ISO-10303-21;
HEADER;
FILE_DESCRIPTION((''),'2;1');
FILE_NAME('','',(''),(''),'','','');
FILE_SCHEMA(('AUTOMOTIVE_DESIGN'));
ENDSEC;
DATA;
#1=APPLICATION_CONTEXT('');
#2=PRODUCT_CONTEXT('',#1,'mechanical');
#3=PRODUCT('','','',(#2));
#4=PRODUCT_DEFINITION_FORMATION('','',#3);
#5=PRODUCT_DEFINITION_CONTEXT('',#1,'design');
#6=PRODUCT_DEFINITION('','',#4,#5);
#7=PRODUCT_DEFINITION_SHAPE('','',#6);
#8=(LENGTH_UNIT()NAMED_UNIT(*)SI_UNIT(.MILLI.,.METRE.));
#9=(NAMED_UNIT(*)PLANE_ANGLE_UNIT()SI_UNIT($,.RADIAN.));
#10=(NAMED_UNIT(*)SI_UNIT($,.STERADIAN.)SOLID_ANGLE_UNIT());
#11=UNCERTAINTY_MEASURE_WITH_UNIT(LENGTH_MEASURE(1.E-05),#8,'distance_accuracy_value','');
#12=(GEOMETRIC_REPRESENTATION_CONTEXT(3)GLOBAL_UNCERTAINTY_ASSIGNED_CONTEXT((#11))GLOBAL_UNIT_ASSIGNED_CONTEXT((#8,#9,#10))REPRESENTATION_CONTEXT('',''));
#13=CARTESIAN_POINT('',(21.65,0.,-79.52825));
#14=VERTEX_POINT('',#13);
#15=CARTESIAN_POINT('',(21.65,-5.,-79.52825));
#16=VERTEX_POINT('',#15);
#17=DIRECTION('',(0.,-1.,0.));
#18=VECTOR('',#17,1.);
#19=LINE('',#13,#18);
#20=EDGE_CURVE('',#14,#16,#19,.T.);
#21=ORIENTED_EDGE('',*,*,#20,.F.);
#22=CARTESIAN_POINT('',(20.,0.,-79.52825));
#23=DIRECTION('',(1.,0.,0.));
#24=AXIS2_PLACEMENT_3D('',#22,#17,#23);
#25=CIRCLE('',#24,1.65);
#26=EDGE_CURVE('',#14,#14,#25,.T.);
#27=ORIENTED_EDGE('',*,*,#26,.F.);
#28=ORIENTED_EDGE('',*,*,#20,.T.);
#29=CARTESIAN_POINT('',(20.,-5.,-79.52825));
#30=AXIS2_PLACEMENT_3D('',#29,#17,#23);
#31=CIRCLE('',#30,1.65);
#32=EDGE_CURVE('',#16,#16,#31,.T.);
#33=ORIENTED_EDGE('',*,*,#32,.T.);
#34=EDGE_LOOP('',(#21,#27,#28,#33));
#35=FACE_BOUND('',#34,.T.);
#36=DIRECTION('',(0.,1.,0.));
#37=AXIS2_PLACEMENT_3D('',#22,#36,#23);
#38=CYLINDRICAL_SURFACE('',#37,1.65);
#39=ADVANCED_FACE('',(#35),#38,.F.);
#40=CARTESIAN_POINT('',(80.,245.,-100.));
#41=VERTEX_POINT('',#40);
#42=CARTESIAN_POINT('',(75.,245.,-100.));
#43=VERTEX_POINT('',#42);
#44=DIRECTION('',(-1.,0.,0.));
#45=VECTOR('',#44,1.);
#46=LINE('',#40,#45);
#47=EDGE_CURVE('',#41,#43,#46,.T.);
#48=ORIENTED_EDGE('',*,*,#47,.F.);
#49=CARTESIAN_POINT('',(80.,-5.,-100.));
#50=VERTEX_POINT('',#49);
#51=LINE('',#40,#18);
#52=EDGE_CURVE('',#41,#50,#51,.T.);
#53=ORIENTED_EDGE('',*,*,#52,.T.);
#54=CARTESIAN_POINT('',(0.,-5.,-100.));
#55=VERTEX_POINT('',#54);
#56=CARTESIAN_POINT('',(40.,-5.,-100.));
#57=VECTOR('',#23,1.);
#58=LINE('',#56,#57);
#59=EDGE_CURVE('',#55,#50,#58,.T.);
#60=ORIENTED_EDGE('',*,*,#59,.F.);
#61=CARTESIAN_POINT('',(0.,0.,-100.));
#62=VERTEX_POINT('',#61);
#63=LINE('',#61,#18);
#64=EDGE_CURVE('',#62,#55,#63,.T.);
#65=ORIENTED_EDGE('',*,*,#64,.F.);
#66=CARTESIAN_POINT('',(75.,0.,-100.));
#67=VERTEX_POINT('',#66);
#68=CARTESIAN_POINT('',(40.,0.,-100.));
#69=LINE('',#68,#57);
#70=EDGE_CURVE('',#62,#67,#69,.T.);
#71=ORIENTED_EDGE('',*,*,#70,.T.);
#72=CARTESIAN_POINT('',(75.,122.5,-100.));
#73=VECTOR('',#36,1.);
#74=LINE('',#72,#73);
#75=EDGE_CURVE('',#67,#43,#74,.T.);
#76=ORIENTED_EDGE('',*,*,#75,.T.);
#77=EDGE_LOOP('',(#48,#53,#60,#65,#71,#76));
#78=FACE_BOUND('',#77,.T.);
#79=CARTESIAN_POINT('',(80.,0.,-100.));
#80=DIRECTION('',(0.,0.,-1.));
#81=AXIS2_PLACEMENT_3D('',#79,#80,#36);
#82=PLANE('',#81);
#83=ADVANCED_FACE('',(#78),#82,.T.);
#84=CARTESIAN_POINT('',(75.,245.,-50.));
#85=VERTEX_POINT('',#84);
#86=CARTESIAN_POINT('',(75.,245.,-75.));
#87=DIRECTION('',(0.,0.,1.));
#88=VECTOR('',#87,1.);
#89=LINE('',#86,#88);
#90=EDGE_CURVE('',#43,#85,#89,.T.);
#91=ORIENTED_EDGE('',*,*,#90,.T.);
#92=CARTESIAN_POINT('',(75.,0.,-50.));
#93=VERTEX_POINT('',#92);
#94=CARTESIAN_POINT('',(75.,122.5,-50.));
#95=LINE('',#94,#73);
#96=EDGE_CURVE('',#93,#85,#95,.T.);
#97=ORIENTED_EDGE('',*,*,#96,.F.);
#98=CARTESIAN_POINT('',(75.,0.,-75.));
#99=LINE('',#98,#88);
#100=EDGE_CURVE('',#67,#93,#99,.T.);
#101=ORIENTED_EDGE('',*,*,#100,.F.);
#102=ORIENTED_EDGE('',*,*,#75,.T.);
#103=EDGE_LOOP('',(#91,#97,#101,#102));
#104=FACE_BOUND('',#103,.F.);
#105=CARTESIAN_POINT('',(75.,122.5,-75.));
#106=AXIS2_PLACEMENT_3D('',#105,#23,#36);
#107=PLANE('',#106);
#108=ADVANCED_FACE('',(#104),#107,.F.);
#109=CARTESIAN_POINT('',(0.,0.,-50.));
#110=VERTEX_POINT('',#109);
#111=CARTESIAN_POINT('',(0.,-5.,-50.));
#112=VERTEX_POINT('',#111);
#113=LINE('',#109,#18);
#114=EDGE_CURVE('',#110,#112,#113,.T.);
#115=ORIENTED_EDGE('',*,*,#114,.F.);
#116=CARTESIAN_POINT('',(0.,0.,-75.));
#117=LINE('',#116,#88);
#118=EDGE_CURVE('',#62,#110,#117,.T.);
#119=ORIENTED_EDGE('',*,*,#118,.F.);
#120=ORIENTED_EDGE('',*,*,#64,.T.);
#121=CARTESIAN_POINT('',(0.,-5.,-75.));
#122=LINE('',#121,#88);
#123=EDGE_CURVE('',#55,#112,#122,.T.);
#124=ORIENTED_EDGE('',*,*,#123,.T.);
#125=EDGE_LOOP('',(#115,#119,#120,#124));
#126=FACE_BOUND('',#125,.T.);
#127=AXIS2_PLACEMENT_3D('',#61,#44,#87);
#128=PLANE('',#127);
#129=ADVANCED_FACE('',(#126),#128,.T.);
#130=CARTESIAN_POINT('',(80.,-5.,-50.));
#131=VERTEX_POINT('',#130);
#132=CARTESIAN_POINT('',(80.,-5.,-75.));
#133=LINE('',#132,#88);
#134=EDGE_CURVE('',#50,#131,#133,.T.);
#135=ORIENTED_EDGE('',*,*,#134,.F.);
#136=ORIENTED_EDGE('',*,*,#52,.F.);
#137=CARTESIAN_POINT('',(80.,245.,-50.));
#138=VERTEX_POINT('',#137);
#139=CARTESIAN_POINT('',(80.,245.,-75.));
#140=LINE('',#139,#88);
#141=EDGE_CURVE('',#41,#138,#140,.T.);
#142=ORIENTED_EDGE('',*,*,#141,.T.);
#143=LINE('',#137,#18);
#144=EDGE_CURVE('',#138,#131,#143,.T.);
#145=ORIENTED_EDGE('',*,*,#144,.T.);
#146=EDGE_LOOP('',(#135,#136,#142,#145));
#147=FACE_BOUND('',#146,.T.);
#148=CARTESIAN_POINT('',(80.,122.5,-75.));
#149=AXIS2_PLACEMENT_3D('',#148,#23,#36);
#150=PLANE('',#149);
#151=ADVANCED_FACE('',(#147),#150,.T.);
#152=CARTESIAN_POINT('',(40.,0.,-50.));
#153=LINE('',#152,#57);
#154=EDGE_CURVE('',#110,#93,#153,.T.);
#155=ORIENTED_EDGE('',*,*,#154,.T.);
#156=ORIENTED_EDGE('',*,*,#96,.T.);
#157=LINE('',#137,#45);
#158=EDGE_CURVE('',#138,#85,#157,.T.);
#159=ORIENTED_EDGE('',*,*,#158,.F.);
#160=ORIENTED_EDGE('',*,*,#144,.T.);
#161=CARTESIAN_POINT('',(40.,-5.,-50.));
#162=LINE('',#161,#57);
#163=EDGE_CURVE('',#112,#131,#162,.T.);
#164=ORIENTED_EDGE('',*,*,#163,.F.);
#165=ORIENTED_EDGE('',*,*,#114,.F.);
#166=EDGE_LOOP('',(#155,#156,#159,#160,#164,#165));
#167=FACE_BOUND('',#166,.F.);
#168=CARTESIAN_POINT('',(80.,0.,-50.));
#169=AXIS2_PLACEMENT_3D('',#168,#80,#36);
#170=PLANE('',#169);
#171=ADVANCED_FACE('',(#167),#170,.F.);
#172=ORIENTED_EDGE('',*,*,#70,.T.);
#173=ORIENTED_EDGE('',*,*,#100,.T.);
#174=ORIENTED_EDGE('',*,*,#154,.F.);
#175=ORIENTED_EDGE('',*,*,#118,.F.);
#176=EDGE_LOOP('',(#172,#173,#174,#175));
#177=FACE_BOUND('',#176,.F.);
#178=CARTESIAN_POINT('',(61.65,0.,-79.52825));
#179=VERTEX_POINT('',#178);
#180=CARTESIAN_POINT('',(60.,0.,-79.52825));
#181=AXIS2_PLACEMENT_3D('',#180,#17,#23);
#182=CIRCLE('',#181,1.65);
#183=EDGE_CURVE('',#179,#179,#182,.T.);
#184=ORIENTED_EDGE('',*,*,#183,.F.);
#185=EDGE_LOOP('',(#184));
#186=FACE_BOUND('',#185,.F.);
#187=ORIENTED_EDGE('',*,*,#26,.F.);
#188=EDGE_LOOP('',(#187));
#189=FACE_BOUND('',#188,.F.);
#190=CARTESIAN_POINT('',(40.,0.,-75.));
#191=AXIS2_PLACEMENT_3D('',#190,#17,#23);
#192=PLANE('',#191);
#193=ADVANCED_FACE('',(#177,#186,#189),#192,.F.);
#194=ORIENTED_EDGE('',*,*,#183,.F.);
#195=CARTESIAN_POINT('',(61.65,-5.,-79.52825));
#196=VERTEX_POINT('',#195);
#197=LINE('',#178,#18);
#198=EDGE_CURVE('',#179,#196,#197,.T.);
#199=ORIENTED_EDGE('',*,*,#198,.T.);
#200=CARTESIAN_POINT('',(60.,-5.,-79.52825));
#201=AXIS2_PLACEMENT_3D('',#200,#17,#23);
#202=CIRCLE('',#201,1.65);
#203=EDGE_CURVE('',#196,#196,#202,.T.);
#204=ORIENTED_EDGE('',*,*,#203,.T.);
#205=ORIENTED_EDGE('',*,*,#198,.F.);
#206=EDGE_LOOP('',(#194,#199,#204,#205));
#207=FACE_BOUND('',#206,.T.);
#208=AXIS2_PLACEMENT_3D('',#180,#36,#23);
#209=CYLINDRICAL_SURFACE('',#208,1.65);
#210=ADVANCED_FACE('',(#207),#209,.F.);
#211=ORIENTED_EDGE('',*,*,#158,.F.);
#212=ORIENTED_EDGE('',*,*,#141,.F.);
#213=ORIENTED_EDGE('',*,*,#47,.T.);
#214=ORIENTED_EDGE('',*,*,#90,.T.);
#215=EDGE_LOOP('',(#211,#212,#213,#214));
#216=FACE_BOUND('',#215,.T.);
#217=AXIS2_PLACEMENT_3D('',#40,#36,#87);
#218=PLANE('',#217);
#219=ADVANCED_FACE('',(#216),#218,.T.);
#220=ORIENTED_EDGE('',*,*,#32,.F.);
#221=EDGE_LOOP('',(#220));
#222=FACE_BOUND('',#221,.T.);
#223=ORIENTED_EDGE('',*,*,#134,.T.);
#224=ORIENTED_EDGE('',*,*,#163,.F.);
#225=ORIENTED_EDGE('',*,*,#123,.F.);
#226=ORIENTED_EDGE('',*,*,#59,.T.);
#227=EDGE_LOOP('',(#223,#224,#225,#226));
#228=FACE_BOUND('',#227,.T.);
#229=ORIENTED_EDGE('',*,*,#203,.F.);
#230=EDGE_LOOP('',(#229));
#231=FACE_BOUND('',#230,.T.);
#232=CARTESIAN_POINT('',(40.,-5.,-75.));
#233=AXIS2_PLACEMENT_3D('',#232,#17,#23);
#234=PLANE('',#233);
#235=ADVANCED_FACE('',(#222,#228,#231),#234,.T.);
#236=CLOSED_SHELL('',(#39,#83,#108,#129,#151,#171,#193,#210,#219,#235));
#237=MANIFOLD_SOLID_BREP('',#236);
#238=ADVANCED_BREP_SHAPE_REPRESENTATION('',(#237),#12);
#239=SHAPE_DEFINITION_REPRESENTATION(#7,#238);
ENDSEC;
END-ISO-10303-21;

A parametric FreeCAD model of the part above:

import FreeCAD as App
import Part
import Sketcher
from FreeCAD import Vector

doc = App.newDocument("Part")
body = doc.addObject("PartDesign::Body", "Body")

# Sketch on XZ plane
sketch1 = doc.addObject("Sketcher::SketchObject", "Sketch")
body.addObject(sketch1)
sketch1.AttachmentSupport = (doc.XZ_Plane, [""])
sketch1.MapMode = "FlatFace"
sketch1.addGeometry(Part.LineSegment(Vector(0, -50, 0), Vector(0, -100, 0)), False)
sketch1.addGeometry(Part.LineSegment(Vector(0, -100, 0), Vector(80, -100, 0)), False)
sketch1.addGeometry(Part.LineSegment(Vector(80, -100, 0), Vector(80, -50, 0)), False)
sketch1.addGeometry(Part.LineSegment(Vector(80, -50, 0), Vector(0, -50, 0)), False)
sketch1.addGeometry(Part.Circle(Vector(20, -79.5, 0), Vector(0, 0, 1), 1.6), False)
sketch1.addGeometry(Part.Circle(Vector(60, -79.5, 0), Vector(0, 0, 1), 1.6), False)
sketch1.addConstraint(Sketcher.Constraint("Coincident", 0, 2, 1, 1))
sketch1.addConstraint(Sketcher.Constraint("Coincident", 1, 2, 2, 1))
sketch1.addConstraint(Sketcher.Constraint("Coincident", 2, 2, 3, 1))
sketch1.addConstraint(Sketcher.Constraint("Coincident", 3, 2, 0, 1))
sketch1.addConstraint(Sketcher.Constraint("Vertical", 0))
sketch1.addConstraint(Sketcher.Constraint("Horizontal", 1))
sketch1.addConstraint(Sketcher.Constraint("Vertical", 2))
sketch1.addConstraint(Sketcher.Constraint("Horizontal", 3))
sketch1.addConstraint(Sketcher.Constraint("Equal", 4, 5))
sketch1.addConstraint(Sketcher.Constraint("PointOnObject", 0, 2, -2))
sketch1.addConstraint(Sketcher.Constraint("Horizontal", 4, 3, 5, 3))
sketch1.addConstraint(Sketcher.Constraint("Diameter", 4, 3.3))
sketch1.addConstraint(Sketcher.Constraint("DistanceX", 1, 1, 1, 2, 80.0))
sketch1.addConstraint(Sketcher.Constraint("DistanceY", 0, 2, 0, 1, 50.0))
sketch1.addConstraint(Sketcher.Constraint("DistanceX", -1, 1, 4, 3, 20.0))
sketch1.addConstraint(Sketcher.Constraint("DistanceX", -1, 1, 5, 3, 60.0))
sketch1.addConstraint(Sketcher.Constraint("DistanceY", 0, 2, -1, 1, 100.0))
sketch1.addConstraint(Sketcher.Constraint("DistanceY", 4, 3, -1, 1, 79.52825))
pad1 = doc.addObject("PartDesign::Pad", "Pad")
body.addObject(pad1)
pad1.Profile = sketch1
pad1.Length = 5

# Sketch on YZ plane
sketch2 = doc.addObject("Sketcher::SketchObject", "Sketch001")
body.addObject(sketch2)
sketch2.AttachmentSupport = (doc.YZ_Plane, [""])
sketch2.MapMode = "FlatFace"
sketch2.AttachmentOffset = App.Placement(Vector(0, 0, 80), App.Rotation())
sketch2.addGeometry(Part.LineSegment(Vector(0, -50, 0), Vector(0, -100, 0)), False)
sketch2.addGeometry(Part.LineSegment(Vector(0, -100, 0), Vector(245, -100, 0)), False)
sketch2.addGeometry(Part.LineSegment(Vector(245, -100, 0), Vector(245, -50, 0)), False)
sketch2.addGeometry(Part.LineSegment(Vector(245, -50, 0), Vector(0, -50, 0)), False)
sketch2.addConstraint(Sketcher.Constraint("Coincident", 0, 2, 1, 1))
sketch2.addConstraint(Sketcher.Constraint("Coincident", 1, 2, 2, 1))
sketch2.addConstraint(Sketcher.Constraint("Coincident", 2, 2, 3, 1))
sketch2.addConstraint(Sketcher.Constraint("Coincident", 3, 2, 0, 1))
sketch2.addConstraint(Sketcher.Constraint("Vertical", 0))
sketch2.addConstraint(Sketcher.Constraint("Horizontal", 1))
sketch2.addConstraint(Sketcher.Constraint("Vertical", 2))
sketch2.addConstraint(Sketcher.Constraint("Horizontal", 3))
sketch2.addConstraint(Sketcher.Constraint("PointOnObject", 0, 2, -2))
sketch2.addConstraint(Sketcher.Constraint("DistanceX", 1, 1, 1, 2, 245.0))
sketch2.addConstraint(Sketcher.Constraint("DistanceY", 0, 2, 0, 1, 50.0))
sketch2.addConstraint(Sketcher.Constraint("DistanceY", 0, 2, -1, 1, 100.0))
pad2 = doc.addObject("PartDesign::Pad", "Pad001")
body.addObject(pad2)
pad2.Profile = sketch2
pad2.Length = 5
pad2.Reversed = True

doc.recompute()
